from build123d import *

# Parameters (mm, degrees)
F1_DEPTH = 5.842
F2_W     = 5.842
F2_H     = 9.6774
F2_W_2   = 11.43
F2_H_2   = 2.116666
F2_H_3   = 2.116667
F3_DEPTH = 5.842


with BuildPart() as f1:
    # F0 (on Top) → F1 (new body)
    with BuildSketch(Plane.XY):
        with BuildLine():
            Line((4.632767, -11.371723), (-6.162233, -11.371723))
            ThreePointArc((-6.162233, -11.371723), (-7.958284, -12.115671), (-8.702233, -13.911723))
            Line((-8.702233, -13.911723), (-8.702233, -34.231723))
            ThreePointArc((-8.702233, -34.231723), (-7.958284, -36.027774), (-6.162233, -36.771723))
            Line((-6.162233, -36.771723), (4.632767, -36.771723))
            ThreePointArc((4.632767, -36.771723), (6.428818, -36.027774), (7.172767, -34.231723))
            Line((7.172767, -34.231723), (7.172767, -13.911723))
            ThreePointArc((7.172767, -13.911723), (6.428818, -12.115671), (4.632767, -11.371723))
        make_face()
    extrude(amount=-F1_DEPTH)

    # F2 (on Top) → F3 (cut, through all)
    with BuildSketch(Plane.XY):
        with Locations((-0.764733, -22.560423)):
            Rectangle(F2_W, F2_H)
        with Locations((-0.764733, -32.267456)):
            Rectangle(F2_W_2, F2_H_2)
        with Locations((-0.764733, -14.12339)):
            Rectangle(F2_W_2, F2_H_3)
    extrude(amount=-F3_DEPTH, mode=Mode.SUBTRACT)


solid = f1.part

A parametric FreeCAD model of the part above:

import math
import FreeCAD as App
import Part
import Sketcher
from FreeCAD import Vector
Q = App.Units.Quantity

doc = App.newDocument("Part")
body = doc.addObject("PartDesign::Body", "Body")

sketch1 = body.newObject("Sketcher::SketchObject", "Sketch")
sketch1.AttachmentSupport = (doc.getObject("XY_Plane"), [""])
sketch1.MapMode = "FlatFace"
sketch1.addGeometry([
    Part.LineSegment(Vector(4.6, -11.4, 0), Vector(-6.2, -11.4, 0)),
    Part.ArcOfCircle(Part.Circle(Vector(-6.2, -13.9, 0), Vector(0, 0, 1), 2.5), math.radians(90), math.radians(180)),
    Part.LineSegment(Vector(-8.7, -13.9, 0), Vector(-8.7, -34.2, 0)),
    Part.ArcOfCircle(Part.Circle(Vector(-6.2, -34.2, 0), Vector(0, 0, 1), 2.5), math.radians(-180), math.radians(-90)),
    Part.LineSegment(Vector(-6.2, -36.8, 0), Vector(4.6, -36.8, 0)),
    Part.ArcOfCircle(Part.Circle(Vector(4.6, -34.2, 0), Vector(0, 0, 1), 2.5), math.radians(-90), math.radians(0)),
    Part.LineSegment(Vector(7.2, -34.2, 0), Vector(7.2, -13.9, 0)),
    Part.ArcOfCircle(Part.Circle(Vector(4.6, -13.9, 0), Vector(0, 0, 1), 2.5), math.radians(0), math.radians(90)),
], False)
sketch1.addConstraint([
    Sketcher.Constraint("Tangent", 0, 2, 1, 1),
    Sketcher.Constraint("Tangent", 1, 2, 2, 1),
    Sketcher.Constraint("Tangent", 2, 2, 3, 1),
    Sketcher.Constraint("Tangent", 3, 2, 4, 1),
    Sketcher.Constraint("Tangent", 4, 2, 5, 1),
    Sketcher.Constraint("Tangent", 5, 2, 6, 1),
    Sketcher.Constraint("Tangent", 6, 2, 7, 1),
    Sketcher.Constraint("Tangent", 7, 2, 0, 1),
    Sketcher.Constraint("Horizontal", 0),
    Sketcher.Constraint("Vertical", 2),
    Sketcher.Constraint("Horizontal", 4),
    Sketcher.Constraint("Vertical", 6),
    Sketcher.Constraint("Equal", 1, 3),
    Sketcher.Constraint("Equal", 3, 5),
    Sketcher.Constraint("Equal", 5, 7),
    Sketcher.Constraint("Radius", 1, Q("0.1 in")),
    Sketcher.Constraint("DistanceY", 2, 2, 2, 1, Q("0.8 in")),
    Sketcher.Constraint("DistanceX", 0, 2, 0, 1, Q("0.425 in")),
    Sketcher.Constraint("DistanceX", 1, 3, -1, 1, 6.162234),
    Sketcher.Constraint("DistanceY", 1, 3, -1, 1, 13.911722),
])
pad1 = body.newObject("PartDesign::Pad", "Pad")
pad1.Profile = sketch1
pad1.Length = Q("0.23 in")
pad1.Reversed = True

sketch2 = body.newObject("Sketcher::SketchObject", "Sketch001")
sketch2.AttachmentSupport = (doc.getObject("XY_Plane"), [""])
sketch2.MapMode = "FlatFace"
sketch2.addGeometry([
    Part.LineSegment(Vector(-3.7, -17.7, 0), Vector(-3.7, -27.4, 0)),
    Part.LineSegment(Vector(-3.7, -27.4, 0), Vector(2.2, -27.4, 0)),
    Part.LineSegment(Vector(2.2, -27.4, 0), Vector(2.2, -17.7, 0)),
    Part.LineSegment(Vector(2.2, -17.7, 0), Vector(-3.7, -17.7, 0)),
    Part.LineSegment(Vector(-6.5, -31.2, 0), Vector(-6.5, -33.3, 0)),
    Part.LineSegment(Vector(-6.5, -33.3, 0), Vector(5, -33.3, 0)),
    Part.LineSegment(Vector(5, -33.3, 0), Vector(5, -31.2, 0)),
    Part.LineSegment(Vector(5, -31.2, 0), Vector(-6.5, -31.2, 0)),
    Part.LineSegment(Vector(-6.5, -13.1, 0), Vector(-6.5, -15.2, 0)),
    Part.LineSegment(Vector(-6.5, -15.2, 0), Vector(5, -15.2, 0)),
    Part.LineSegment(Vector(5, -15.2, 0), Vector(5, -13.1, 0)),
    Part.LineSegment(Vector(5, -13.1, 0), Vector(-6.5, -13.1, 0)),
], False)
sketch2.addConstraint([
    Sketcher.Constraint("Coincident", 0, 2, 1, 1),
    Sketcher.Constraint("Coincident", 1, 2, 2, 1),
    Sketcher.Constraint("Coincident", 2, 2, 3, 1),
    Sketcher.Constraint("Coincident", 3, 2, 0, 1),
    Sketcher.Constraint("Coincident", 4, 2, 5, 1),
    Sketcher.Constraint("Coincident", 5, 2, 6, 1),
    Sketcher.Constraint("Coincident", 6, 2, 7, 1),
    Sketcher.Constraint("Coincident", 7, 2, 4, 1),
    Sketcher.Constraint("Coincident", 8, 2, 9, 1),
    Sketcher.Constraint("Coincident", 9, 2, 10, 1),
    Sketcher.Constraint("Coincident", 10, 2, 11, 1),
    Sketcher.Constraint("Coincident", 11, 2, 8, 1),
    Sketcher.Constraint("Vertical", 0),
    Sketcher.Constraint("Horizontal", 1),
    Sketcher.Constraint("Vertical", 2),
    Sketcher.Constraint("Horizontal", 3),
    Sketcher.Constraint("Vertical", 4),
    Sketcher.Constraint("Horizontal", 5),
    Sketcher.Constraint("Vertical", 6),
    Sketcher.Constraint("Horizontal", 7),
    Sketcher.Constraint("Vertical", 8),
    Sketcher.Constraint("Horizontal", 9),
    Sketcher.Constraint("Vertical", 10),
    Sketcher.Constraint("Horizontal", 11),
    Sketcher.Constraint("Vertical", 7, 2, 8, 2),
    Sketcher.Constraint("Vertical", 6, 2, 9, 2),
    Sketcher.Constraint("Equal", 6, 8),
    Sketcher.Constraint("DistanceX", 1, 1, 1, 2, Q("0.23 in")),
    Sketcher.Constraint("DistanceX", 5, 1, 5, 2, Q("0.45 in")),
    Sketcher.Constraint("DistanceY", 3, 2, 8, 2, Q("0.1 in")),
    Sketcher.Constraint("DistanceY", 0, 2, 0, 1, Q("0.381 in")),
    Sketcher.Constraint("DistanceX", 4, 2, 0, 2, Q("0.11 in")),
    Sketcher.Constraint("DistanceY", 6, 2, 1, 2, Q("0.15 in")),
    Sketcher.Constraint("DistanceY", 4, 2, 4, 1, 2.116666),
    Sketcher.Constraint("DistanceY", 4, 2, -1, 1, 33.325789),
    Sketcher.Constraint("DistanceX", 0, 2, -1, 1, 3.685733),
])
pocket1 = body.newObject("PartDesign::Pocket", "Pocket")
pocket1.Profile = sketch2
pocket1.Type = "ThroughAll"

doc.recompute()
